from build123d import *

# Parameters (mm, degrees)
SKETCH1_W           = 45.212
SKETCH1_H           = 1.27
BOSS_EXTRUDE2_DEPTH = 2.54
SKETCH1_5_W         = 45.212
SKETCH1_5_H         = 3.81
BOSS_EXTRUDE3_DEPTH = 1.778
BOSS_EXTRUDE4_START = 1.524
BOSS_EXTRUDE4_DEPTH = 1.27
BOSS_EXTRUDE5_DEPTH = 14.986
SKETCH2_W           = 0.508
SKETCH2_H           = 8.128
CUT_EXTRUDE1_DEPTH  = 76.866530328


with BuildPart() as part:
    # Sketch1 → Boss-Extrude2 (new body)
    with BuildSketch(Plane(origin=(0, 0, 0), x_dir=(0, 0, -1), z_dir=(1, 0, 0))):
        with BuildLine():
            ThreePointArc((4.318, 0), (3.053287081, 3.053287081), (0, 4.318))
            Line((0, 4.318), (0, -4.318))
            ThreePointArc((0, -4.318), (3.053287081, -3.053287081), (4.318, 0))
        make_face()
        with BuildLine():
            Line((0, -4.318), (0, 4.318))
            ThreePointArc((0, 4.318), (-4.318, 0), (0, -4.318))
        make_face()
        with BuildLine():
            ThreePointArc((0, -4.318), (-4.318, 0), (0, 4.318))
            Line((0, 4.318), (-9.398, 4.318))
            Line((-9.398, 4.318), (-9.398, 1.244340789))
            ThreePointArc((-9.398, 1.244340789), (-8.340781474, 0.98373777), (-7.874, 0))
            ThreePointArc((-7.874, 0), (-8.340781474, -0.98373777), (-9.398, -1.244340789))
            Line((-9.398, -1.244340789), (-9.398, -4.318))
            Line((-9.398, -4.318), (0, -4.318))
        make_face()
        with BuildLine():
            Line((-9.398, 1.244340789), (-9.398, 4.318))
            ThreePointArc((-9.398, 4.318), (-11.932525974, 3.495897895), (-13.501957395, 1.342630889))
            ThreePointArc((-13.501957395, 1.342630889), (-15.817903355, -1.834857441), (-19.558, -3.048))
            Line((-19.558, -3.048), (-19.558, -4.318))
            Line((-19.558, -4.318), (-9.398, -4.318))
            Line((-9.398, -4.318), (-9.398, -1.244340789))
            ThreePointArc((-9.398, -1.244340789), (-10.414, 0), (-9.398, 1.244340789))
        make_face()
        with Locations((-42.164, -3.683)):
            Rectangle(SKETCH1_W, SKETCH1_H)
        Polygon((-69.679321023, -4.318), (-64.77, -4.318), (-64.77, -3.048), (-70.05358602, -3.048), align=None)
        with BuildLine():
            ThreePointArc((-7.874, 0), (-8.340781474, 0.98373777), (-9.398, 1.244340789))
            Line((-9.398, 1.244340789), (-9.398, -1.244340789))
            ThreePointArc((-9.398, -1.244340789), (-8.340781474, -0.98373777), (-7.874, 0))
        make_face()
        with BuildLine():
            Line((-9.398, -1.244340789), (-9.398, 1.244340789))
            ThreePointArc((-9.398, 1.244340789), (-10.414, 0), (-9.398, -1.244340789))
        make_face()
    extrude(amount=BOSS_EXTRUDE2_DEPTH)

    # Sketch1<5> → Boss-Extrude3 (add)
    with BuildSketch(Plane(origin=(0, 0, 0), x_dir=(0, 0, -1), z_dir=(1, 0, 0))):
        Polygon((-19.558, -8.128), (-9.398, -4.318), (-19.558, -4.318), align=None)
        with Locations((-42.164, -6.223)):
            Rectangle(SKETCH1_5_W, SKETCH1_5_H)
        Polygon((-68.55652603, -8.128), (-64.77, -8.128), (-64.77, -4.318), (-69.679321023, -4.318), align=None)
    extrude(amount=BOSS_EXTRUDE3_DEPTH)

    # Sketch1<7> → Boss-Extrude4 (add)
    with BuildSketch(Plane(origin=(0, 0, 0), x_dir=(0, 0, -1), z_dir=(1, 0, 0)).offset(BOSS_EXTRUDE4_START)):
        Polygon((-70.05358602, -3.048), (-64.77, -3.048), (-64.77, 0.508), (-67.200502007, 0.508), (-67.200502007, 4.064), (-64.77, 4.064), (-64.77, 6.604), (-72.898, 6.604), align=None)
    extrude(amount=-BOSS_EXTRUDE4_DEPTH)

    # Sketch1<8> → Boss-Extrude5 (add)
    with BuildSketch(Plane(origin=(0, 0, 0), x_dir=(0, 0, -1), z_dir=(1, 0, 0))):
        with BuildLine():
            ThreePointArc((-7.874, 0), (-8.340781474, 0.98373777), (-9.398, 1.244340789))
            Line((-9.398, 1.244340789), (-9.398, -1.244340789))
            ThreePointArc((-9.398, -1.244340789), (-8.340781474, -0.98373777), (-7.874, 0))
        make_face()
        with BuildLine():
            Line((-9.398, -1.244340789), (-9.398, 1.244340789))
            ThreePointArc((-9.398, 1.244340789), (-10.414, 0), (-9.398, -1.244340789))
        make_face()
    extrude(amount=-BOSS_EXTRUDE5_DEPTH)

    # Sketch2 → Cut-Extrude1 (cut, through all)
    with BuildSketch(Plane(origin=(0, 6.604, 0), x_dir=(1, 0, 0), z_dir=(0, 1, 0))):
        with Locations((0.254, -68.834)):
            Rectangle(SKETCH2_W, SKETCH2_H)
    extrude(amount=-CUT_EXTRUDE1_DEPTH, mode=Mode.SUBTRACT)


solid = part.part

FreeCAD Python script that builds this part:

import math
import FreeCAD as App
import Part
import Sketcher
Q = App.Units.Quantity

doc = App.newDocument("Part")
body = doc.addObject("PartDesign::Body", "Body")

# Sketch on YZ plane
sketch1 = body.newObject("Sketcher::SketchObject", "Sketch")
sketch1.AttachmentSupport = (doc.getObject("YZ_Plane"), [""])
sketch1.MapMode = "FlatFace"
sketch1.addGeometry(Part.ArcOfCircle(Part.Circle(App.Vector(0, 0, 0), App.Vector(0, 0, 1), 4.3), math.radians(-90), math.radians(0)), False)
sketch1.addGeometry(Part.LineSegment(App.Vector(4.3, 0, 0), App.Vector(4.3, 9.4, 0)), False)
sketch1.addGeometry(Part.ArcOfCircle(Part.Circle(App.Vector(0, 9.4, 0), App.Vector(0, 0, 1), 4.3), math.radians(0), math.radians(72)), False)
sketch1.addGeometry(Part.ArcOfCircle(Part.Circle(App.Vector(3.3, 19.6, 0), App.Vector(0, 0, 1), 6.4), math.radians(180), math.radians(252)), False)
sketch1.addGeometry(Part.LineSegment(App.Vector(-3, 19.6, 0), App.Vector(-3, 70.1, 0)), False)
sketch1.addGeometry(Part.LineSegment(App.Vector(-3, 70.1, 0), App.Vector(-4.3, 69.7, 0)), False)
sketch1.addGeometry(Part.LineSegment(App.Vector(-4.3, 69.7, 0), App.Vector(-4.3, 0, 0)), False)
sketch1.addGeometry(Part.ArcOfCircle(Part.Circle(App.Vector(0, 0, 0), App.Vector(0, 0, 1), 4.3), math.radians(-180), math.radians(-90)), False)
sketch1.addConstraint(Sketcher.Constraint("Tangent", 0, 2, 1, 1))
sketch1.addConstraint(Sketcher.Constraint("Tangent", 1, 2, 2, 1))
sketch1.addConstraint(Sketcher.Constraint("Tangent", 2, 2, 3, 2))
sketch1.addConstraint(Sketcher.Constraint("Tangent", 3, 1, 4, 1))
sketch1.addConstraint(Sketcher.Constraint("Coincident", 4, 2, 5, 1))
sketch1.addConstraint(Sketcher.Constraint("Coincident", 5, 2, 6, 1))
sketch1.addConstraint(Sketcher.Constraint("Tangent", 6, 2, 7, 1))
sketch1.addConstraint(Sketcher.Constraint("Tangent", 7, 2, 0, 1))
sketch1.addConstraint(Sketcher.Constraint("Vertical", 1))
sketch1.addConstraint(Sketcher.Constraint("Vertical", 4))
sketch1.addConstraint(Sketcher.Constraint("Vertical", 6))
sketch1.addConstraint(Sketcher.Constraint("Coincident", 0, 3, -1, 1))
sketch1.addConstraint(Sketcher.Constraint("Equal", 0, 2))
sketch1.addConstraint(Sketcher.Constraint("Equal", 2, 7))
sketch1.addConstraint(Sketcher.Constraint("PointOnObject", 7, 2, -2))
sketch1.addConstraint(Sketcher.Constraint("Radius", 0, Q("0.17 in")))
sketch1.addConstraint(Sketcher.Constraint("DistanceY", 1, 1, 1, 2, Q("0.37 in")))
sketch1.addConstraint(Sketcher.Constraint("DistanceY", 2, 3, 3, 3, Q("0.4 in")))
sketch1.addConstraint(Sketcher.Constraint("DistanceX", 3, 1, -1, 1, Q("0.12 in")))
sketch1.addConstraint(Sketcher.Constraint("Distance", 5, Q("1.323999 mm")))
sketch1.addConstraint(Sketcher.Constraint("DistanceY", 6, 2, 6, 1, Q("69.679321 mm")))
pad1 = body.newObject("PartDesign::Pad", "Pad")
pad1.Profile = sketch1
pad1.Length = Q("0.1 in")

# Sketch on YZ plane
sketch2 = body.newObject("Sketcher::SketchObject", "Sketch001")
sketch2.AttachmentSupport = (doc.getObject("YZ_Plane"), [""])
sketch2.MapMode = "FlatFace"
sketch2.addGeometry(Part.LineSegment(App.Vector(-8.1, 19.6, 0), App.Vector(-4.3, 9.4, 0)), False)
sketch2.addGeometry(Part.LineSegment(App.Vector(-4.3, 9.4, 0), App.Vector(-4.3, 69.7, 0)), False)
sketch2.addGeometry(Part.LineSegment(App.Vector(-4.3, 69.7, 0), App.Vector(-8.1, 68.6, 0)), False)
sketch2.addGeometry(Part.LineSegment(App.Vector(-8.1, 68.6, 0), App.Vector(-8.1, 19.6, 0)), False)
sketch2.addConstraint(Sketcher.Constraint("Coincident", 0, 2, 1, 1))
sketch2.addConstraint(Sketcher.Constraint("Coincident", 1, 2, 2, 1))
sketch2.addConstraint(Sketcher.Constraint("Coincident", 2, 2, 3, 1))
sketch2.addConstraint(Sketcher.Constraint("Coincident", 3, 2, 0, 1))
sketch2.addConstraint(Sketcher.Constraint("Vertical", 1))
sketch2.addConstraint(Sketcher.Constraint("Vertical", 3))
sketch2.addConstraint(Sketcher.Constraint("DistanceY", 0, 2, 3, 2, Q("0.4 in")))
sketch2.addConstraint(Sketcher.Constraint("DistanceX", 0, 2, -1, 1, Q("0.17 in")))
sketch2.addConstraint(Sketcher.Constraint("DistanceY", -1, 1, 0, 2, Q("0.37 in")))
sketch2.addConstraint(Sketcher.Constraint("DistanceX", 2, 2, -1, 1, Q("0.32 in")))
sketch2.addConstraint(Sketcher.Constraint("Distance", 2, Q("3.971998 mm")))
sketch2.addConstraint(Sketcher.Constraint("DistanceY", 1, 1, 1, 2, Q("60.281321 mm")))
pad2 = body.newObject("PartDesign::Pad", "Pad001")
pad2.Profile = sketch2
pad2.Length = Q("0.07 in")

# Sketch on YZ plane
sketch3 = body.newObject("Sketcher::SketchObject", "Sketch002")
sketch3.AttachmentSupport = (doc.getObject("YZ_Plane"), [""])
sketch3.MapMode = "FlatFace"
sketch3.AttachmentOffset = App.Placement(App.Vector(0, 0, 0.06 * 25.4), App.Rotation())
sketch3.addGeometry(Part.LineSegment(App.Vector(-3, 70.1, 0), App.Vector(-3, 64.8, 0)), False)
sketch3.addGeometry(Part.LineSegment(App.Vector(-3, 64.8, 0), App.Vector(0.5, 64.8, 0)), False)
sketch3.addGeometry(Part.LineSegment(App.Vector(0.5, 64.8, 0), App.Vector(0.5, 67.2, 0)), False)
sketch3.addGeometry(Part.LineSegment(App.Vector(0.5, 67.2, 0), App.Vector(4.1, 67.2, 0)), False)
sketch3.addGeometry(Part.LineSegment(App.Vector(4.1, 67.2, 0), App.Vector(4.1, 64.8, 0)), False)
sketch3.addGeometry(Part.LineSegment(App.Vector(4.1, 64.8, 0), App.Vector(6.6, 64.8, 0)), False)
sketch3.addGeometry(Part.LineSegment(App.Vector(6.6, 64.8, 0), App.Vector(6.6, 72.9, 0)), False)
sketch3.addGeometry(Part.LineSegment(App.Vector(6.6, 72.9, 0), App.Vector(-3, 70.1, 0)), False)
sketch3.addConstraint(Sketcher.Constraint("Coincident", 0, 2, 1, 1))
sketch3.addConstraint(Sketcher.Constraint("Coincident", 1, 2, 2, 1))
sketch3.addConstraint(Sketcher.Constraint("Coincident", 2, 2, 3, 1))
sketch3.addConstraint(Sketcher.Constraint("Coincident", 3, 2, 4, 1))
sketch3.addConstraint(Sketcher.Constraint("Coincident", 4, 2, 5, 1))
sketch3.addConstraint(Sketcher.Constraint("Coincident", 5, 2, 6, 1))
sketch3.addConstraint(Sketcher.Constraint("Coincident", 6, 2, 7, 1))
sketch3.addConstraint(Sketcher.Constraint("Coincident", 7, 2, 0, 1))
sketch3.addConstraint(Sketcher.Constraint("Vertical", 0))
sketch3.addConstraint(Sketcher.Constraint("Horizontal", 1))
sketch3.addConstraint(Sketcher.Constraint("Vertical", 2))
sketch3.addConstraint(Sketcher.Constraint("Horizontal", 3))
sketch3.addConstraint(Sketcher.Constraint("Vertical", 4))
sketch3.addConstraint(Sketcher.Constraint("Horizontal", 5))
sketch3.addConstraint(Sketcher.Constraint("Vertical", 6))
sketch3.addConstraint(Sketcher.Constraint("Horizontal", 1, 2, 4, 2))
sketch3.addConstraint(Sketcher.Constraint("Equal", 1, 3))
sketch3.addConstraint(Sketcher.Constraint("DistanceX", 5, 1, 5, 2, Q("0.1 in")))
sketch3.addConstraint(Sketcher.Constraint("DistanceX", 1, 1, 1, 2, Q("0.14 in")))
sketch3.addConstraint(Sketcher.Constraint("DistanceY", 6, 1, 6, 2, Q("0.32 in")))
sketch3.addConstraint(Sketcher.Constraint("DistanceX", 0, 2, -1, 1, Q("0.12 in")))
sketch3.addConstraint(Sketcher.Constraint("DistanceY", -1, 1, 0, 2, Q("2.55 in")))
sketch3.addConstraint(Sketcher.Constraint("DistanceY", 0, 2, 0, 1, Q("5.283586 mm")))
sketch3.addConstraint(Sketcher.Constraint("DistanceY", 2, 1, 2, 2, Q("2.430502 mm")))
pad3 = body.newObject("PartDesign::Pad", "Pad002")
pad3.Profile = sketch3
pad3.Length = Q("0.05 in")
pad3.Reversed = True

# Sketch on YZ plane
sketch4 = body.newObject("Sketcher::SketchObject", "Sketch003")
sketch4.AttachmentSupport = (doc.getObject("YZ_Plane"), [""])
sketch4.MapMode = "FlatFace"
sketch4.addGeometry(Part.ArcOfCircle(Part.Circle(App.Vector(0, 9.1, 0), App.Vector(0, 0, 1), 1.3), math.radians(-90), math.radians(12)), False)
sketch4.addGeometry(Part.ArcOfCircle(Part.Circle(App.Vector(0, 9.1, 0), App.Vector(0, 0, 1), 1.3), math.radians(12), math.radians(168)), False)
sketch4.addGeometry(Part.ArcOfCircle(Part.Circle(App.Vector(0, 9.1, 0), App.Vector(0, 0, 1), 1.3), math.radians(168), math.radians(270)), False)
sketch4.addConstraint(Sketcher.Constraint("Tangent", 0, 2, 1, 1))
sketch4.addConstraint(Sketcher.Constraint("Tangent", 1, 2, 2, 1))
sketch4.addConstraint(Sketcher.Constraint("Tangent", 2, 2, 0, 1))
sketch4.addConstraint(Sketcher.Constraint("Symmetric", 0, 2, 1, 2, -2))
sketch4.addConstraint(Sketcher.Constraint("PointOnObject", 2, 2, -2))
sketch4.addConstraint(Sketcher.Constraint("Radius", 0, Q("0.05 in")))
sketch4.addConstraint(Sketcher.Constraint("DistanceY", -1, 1, 0, 3, Q("0.36 in")))
sketch4.addConstraint(Sketcher.Constraint("DistanceY", -1, 1, 0, 2, Q("0.37 in")))
pad4 = body.newObject("PartDesign::Pad", "Pad003")
pad4.Profile = sketch4
pad4.Length = Q("0.59 in")
pad4.Reversed = True

# Sketch on XZ plane
sketch5 = body.newObject("Sketcher::SketchObject", "Sketch004")
sketch5.AttachmentSupport = (doc.getObject("XZ_Plane"), [""])
sketch5.MapMode = "FlatFace"
sketch5.AttachmentOffset = App.Placement(App.Vector(0, 0, -0.26 * 25.4), App.Rotation())
sketch5.addGeometry(Part.LineSegment(App.Vector(0, 64.8, 0), App.Vector(0, 72.9, 0)), False)
sketch5.addGeometry(Part.LineSegment(App.Vector(0, 72.9, 0), App.Vector(0.5, 72.9, 0)), False)
sketch5.addGeometry(Part.LineSegment(App.Vector(0.5, 72.9, 0), App.Vector(0.5, 64.8, 0)), False)
sketch5.addGeometry(Part.LineSegment(App.Vector(0.5, 64.8, 0), App.Vector(0, 64.8, 0)), False)
sketch5.addConstraint(Sketcher.Constraint("Coincident", 0, 2, 1, 1))
sketch5.addConstraint(Sketcher.Constraint("Coincident", 1, 2, 2, 1))
sketch5.addConstraint(Sketcher.Constraint("Coincident", 2, 2, 3, 1))
sketch5.addConstraint(Sketcher.Constraint("Coincident", 3, 2, 0, 1))
sketch5.addConstraint(Sketcher.Constraint("Vertical", 0))
sketch5.addConstraint(Sketcher.Constraint("Horizontal", 1))
sketch5.addConstraint(Sketcher.Constraint("Vertical", 2))
sketch5.addConstraint(Sketcher.Constraint("Horizontal", 3))
sketch5.addConstraint(Sketcher.Constraint("PointOnObject", 0, 2, -2))
sketch5.addConstraint(Sketcher.Constraint("DistanceX", 1, 1, 1, 2, Q("0.02 in")))
sketch5.addConstraint(Sketcher.Constraint("DistanceY", 0, 1, 0, 2, Q("0.32 in")))
sketch5.addConstraint(Sketcher.Constraint("DistanceY", -1, 1, 0, 2, Q("2.87 in")))
pocket1 = body.newObject("PartDesign::Pocket", "Pocket")
pocket1.Profile = sketch5
pocket1.Type = "ThroughAll"
pocket1.Reversed = True

doc.recompute()
